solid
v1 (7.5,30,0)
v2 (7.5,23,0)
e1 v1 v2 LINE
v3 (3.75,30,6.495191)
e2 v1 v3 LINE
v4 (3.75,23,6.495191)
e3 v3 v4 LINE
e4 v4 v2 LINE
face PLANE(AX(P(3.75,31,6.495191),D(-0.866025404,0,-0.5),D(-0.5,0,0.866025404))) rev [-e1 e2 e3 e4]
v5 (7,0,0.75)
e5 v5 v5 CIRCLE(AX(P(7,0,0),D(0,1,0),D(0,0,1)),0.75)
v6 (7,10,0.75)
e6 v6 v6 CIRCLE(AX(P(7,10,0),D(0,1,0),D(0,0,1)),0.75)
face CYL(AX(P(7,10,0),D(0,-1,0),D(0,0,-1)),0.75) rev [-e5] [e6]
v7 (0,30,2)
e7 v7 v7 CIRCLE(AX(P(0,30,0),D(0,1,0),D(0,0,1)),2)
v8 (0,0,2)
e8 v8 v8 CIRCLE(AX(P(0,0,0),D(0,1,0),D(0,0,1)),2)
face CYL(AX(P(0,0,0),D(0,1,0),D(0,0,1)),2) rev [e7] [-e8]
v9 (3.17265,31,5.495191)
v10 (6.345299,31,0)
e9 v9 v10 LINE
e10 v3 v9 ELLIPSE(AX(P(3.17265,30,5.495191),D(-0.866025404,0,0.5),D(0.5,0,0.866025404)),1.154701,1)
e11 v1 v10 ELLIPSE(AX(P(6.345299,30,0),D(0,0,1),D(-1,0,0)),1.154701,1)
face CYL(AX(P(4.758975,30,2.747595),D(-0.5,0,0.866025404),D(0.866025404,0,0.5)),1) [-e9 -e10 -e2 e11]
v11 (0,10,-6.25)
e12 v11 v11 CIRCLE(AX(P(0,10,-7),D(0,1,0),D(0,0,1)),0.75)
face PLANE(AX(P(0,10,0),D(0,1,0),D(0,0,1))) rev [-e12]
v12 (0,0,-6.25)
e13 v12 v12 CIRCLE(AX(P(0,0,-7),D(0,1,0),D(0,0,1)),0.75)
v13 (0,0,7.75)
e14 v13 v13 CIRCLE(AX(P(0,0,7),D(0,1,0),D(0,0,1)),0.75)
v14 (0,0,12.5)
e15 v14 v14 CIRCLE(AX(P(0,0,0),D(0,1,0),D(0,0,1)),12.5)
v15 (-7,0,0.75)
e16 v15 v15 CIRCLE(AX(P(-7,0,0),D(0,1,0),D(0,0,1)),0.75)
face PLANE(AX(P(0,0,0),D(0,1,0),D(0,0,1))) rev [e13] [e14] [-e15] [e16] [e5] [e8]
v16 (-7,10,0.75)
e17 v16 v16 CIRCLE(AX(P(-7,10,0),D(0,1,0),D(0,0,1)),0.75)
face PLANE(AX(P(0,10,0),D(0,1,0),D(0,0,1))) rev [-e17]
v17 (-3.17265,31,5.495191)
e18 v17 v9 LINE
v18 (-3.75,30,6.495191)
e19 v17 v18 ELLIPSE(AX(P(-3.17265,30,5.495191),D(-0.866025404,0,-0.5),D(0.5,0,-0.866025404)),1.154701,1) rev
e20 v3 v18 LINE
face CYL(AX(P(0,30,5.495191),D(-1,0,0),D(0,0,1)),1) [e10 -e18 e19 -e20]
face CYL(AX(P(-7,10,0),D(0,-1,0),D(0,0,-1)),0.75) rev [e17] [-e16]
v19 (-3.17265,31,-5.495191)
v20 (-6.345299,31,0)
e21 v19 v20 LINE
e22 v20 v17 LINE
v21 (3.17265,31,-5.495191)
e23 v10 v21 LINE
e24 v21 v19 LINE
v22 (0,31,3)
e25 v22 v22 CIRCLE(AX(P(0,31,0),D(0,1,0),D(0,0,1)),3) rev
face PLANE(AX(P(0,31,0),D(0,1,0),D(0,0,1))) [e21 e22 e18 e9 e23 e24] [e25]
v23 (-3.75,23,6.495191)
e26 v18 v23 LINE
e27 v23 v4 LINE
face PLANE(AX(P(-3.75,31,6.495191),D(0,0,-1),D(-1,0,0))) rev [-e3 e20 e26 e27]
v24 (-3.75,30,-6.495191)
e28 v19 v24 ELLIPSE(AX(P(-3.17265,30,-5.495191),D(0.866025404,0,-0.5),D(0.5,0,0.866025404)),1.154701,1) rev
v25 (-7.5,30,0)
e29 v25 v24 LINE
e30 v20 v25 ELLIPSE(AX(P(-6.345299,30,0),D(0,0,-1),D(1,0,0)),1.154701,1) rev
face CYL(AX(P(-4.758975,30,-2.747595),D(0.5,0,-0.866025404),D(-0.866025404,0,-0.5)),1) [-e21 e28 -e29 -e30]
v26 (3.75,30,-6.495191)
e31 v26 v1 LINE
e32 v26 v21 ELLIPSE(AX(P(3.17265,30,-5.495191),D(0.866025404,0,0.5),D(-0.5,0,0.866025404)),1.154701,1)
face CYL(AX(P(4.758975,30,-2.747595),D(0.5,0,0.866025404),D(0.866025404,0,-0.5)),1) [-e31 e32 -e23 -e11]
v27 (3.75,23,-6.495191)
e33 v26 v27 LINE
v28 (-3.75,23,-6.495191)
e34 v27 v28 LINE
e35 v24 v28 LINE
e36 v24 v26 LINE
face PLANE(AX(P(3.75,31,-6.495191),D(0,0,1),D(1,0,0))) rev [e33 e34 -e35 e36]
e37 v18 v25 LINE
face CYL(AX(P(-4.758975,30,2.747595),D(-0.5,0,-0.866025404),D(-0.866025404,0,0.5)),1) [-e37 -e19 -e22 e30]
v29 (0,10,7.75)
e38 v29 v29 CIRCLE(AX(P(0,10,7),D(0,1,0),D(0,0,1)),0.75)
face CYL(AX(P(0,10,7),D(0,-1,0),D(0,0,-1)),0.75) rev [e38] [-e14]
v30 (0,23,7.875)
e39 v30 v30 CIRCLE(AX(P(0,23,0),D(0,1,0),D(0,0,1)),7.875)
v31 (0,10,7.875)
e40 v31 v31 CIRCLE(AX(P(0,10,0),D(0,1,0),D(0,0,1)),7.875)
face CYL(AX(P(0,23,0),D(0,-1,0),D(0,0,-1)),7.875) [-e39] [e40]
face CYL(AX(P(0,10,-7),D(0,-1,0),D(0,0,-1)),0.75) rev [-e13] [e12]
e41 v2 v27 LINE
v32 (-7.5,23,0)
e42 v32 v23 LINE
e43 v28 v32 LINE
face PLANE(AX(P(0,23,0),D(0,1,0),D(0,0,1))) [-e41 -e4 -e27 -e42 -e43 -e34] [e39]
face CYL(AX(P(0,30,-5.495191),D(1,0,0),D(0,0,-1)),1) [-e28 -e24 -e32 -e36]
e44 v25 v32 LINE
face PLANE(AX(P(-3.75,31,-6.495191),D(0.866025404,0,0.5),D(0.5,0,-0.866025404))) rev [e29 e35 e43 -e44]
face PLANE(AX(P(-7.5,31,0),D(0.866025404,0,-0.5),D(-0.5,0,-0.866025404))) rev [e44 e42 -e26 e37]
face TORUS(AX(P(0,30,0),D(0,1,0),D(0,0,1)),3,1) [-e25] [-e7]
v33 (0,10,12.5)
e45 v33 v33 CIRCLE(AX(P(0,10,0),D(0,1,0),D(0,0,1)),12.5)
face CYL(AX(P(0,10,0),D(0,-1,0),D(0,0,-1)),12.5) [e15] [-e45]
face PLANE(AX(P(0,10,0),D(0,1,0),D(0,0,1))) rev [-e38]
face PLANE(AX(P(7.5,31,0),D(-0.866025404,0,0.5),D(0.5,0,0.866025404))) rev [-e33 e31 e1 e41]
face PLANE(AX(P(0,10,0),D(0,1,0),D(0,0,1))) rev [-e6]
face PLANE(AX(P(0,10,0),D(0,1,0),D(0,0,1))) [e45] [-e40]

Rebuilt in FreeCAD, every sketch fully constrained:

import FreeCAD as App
import Part
import Sketcher
Q = App.Units.Quantity


def edges_at(feature, points):
    """Names of the edges that pass closest to the given points."""
    edges = feature.Shape.Edges
    near = lambda p: min(range(len(edges)), key=lambda i: edges[i].distToShape(Part.Vertex(*p))[0])
    return sorted({f"Edge{near(p) + 1}" for p in points})

doc = App.newDocument("Part")
body = doc.addObject("PartDesign::Body", "Body")

# Sketch on XZ plane
sketch1 = doc.addObject("Sketcher::SketchObject", "Sketch")
body.addObject(sketch1)
sketch1.AttachmentSupport = (doc.XZ_Plane, [""])
sketch1.MapMode = "FlatFace"
sketch1.addGeometry([
    Part.Circle(App.Vector(0, 0, 0), App.Vector(0, 0, 1), 12.5),  # 0
    Part.Circle(App.Vector(0, 7, 0), App.Vector(0, 0, 1), 0.8),  # 1
    Part.Circle(App.Vector(-7, 0, 0), App.Vector(0, 0, 1), 0.8),  # 2
    Part.Circle(App.Vector(7, 0, 0), App.Vector(0, 0, 1), 0.8),  # 3
    Part.Circle(App.Vector(0, -7, 0), App.Vector(0, 0, 1), 0.8),  # 4
], False)
sketch1.addConstraint([
    Sketcher.Constraint("Coincident", 0, 3, -1, 1),
    Sketcher.Constraint("Equal", 1, 2),
    Sketcher.Constraint("Equal", 2, 3),
    Sketcher.Constraint("Equal", 3, 4),
    Sketcher.Constraint("Symmetric", 2, 3, 3, 3, -1, 1),
    Sketcher.Constraint("Symmetric", 1, 3, 4, 3, -1, 1),
    Sketcher.Constraint("PointOnObject", 1, 3, -2),
    Sketcher.Constraint("PointOnObject", 2, 3, -1),
    Sketcher.Constraint("Diameter", 0, Q("25 mm")),
    Sketcher.Constraint("Diameter", 1, Q("1.5 mm")),
    Sketcher.Constraint("DistanceY", -1, 1, 1, 3, Q("7 mm")),
    Sketcher.Constraint("DistanceX", 2, 3, -1, 1, Q("7 mm")),
])
pad1 = doc.addObject("PartDesign::Pad", "Pad")
body.addObject(pad1)
pad1.Profile = sketch1
pad1.Length = 10
pad1.Reversed = True

# Sketch on XZ plane
sketch2 = doc.addObject("Sketcher::SketchObject", "Sketch001")
body.addObject(sketch2)
sketch2.AttachmentSupport = (doc.XZ_Plane, [""])
sketch2.MapMode = "FlatFace"
sketch2.AttachmentOffset = App.Placement(App.Vector(0, 0, -10), App.Rotation())
sketch2.addGeometry(Part.Circle(App.Vector(0, 0, 0), App.Vector(0, 0, 1), 8), False)
sketch2.addConstraint([
    Sketcher.Constraint("Coincident", 0, 3, -1, 1),
    Sketcher.Constraint("Diameter", 0, Q("15.75 mm")),
])
pad2 = doc.addObject("PartDesign::Pad", "Pad001")
body.addObject(pad2)
pad2.Profile = sketch2
pad2.Length = 13
pad2.Reversed = True

# Sketch on XZ plane
sketch3 = doc.addObject("Sketcher::SketchObject", "Sketch002")
body.addObject(sketch3)
sketch3.AttachmentSupport = (doc.XZ_Plane, [""])
sketch3.MapMode = "FlatFace"
sketch3.AttachmentOffset = App.Placement(App.Vector(0, 0, -23), App.Rotation())
sketch3.addGeometry([
    Part.LineSegment(App.Vector(8, 0, 0), App.Vector(4, -6, 0)),  # 0
    Part.LineSegment(App.Vector(4, -6, 0), App.Vector(-4, -6, 0)),  # 1
    Part.LineSegment(App.Vector(-4, -6, 0), App.Vector(-8, 0, 0)),  # 2
    Part.LineSegment(App.Vector(-8, 0, 0), App.Vector(-4, 6, 0)),  # 3
    Part.LineSegment(App.Vector(-4, 6, 0), App.Vector(4, 6, 0)),  # 4
    Part.LineSegment(App.Vector(4, 6, 0), App.Vector(8, 0, 0)),  # 5
], False)
sketch3.addConstraint([
    Sketcher.Constraint("Coincident", 0, 2, 1, 1),
    Sketcher.Constraint("Coincident", 1, 2, 2, 1),
    Sketcher.Constraint("Coincident", 2, 2, 3, 1),
    Sketcher.Constraint("Coincident", 3, 2, 4, 1),
    Sketcher.Constraint("Coincident", 4, 2, 5, 1),
    Sketcher.Constraint("Coincident", 5, 2, 0, 1),
    Sketcher.Constraint("Horizontal", 1),
    Sketcher.Constraint("Horizontal", 4),
    Sketcher.Constraint("Symmetric", 0, 2, 3, 2, -1, 1),
    Sketcher.Constraint("Symmetric", 2, 2, 5, 2, -1, 1),
    Sketcher.Constraint("PointOnObject", 2, 2, -1),
    Sketcher.Constraint("Parallel", 2, 5),
    Sketcher.Constraint("Vertical", 1, 2, 3, 2),
    Sketcher.Constraint("Angle", 0, Q("-120 deg")),
    Sketcher.Constraint("DistanceX", 1, 2, 1, 1, Q("7.5 mm")),
    Sketcher.Constraint("DistanceX", 2, 2, 5, 2, Q("15 mm")),
])
pad3 = doc.addObject("PartDesign::Pad", "Pad002")
body.addObject(pad3)
pad3.Profile = sketch3
pad3.Length = 8
pad3.Reversed = True

# Sketch on XZ plane
sketch4 = doc.addObject("Sketcher::SketchObject", "Sketch003")
body.addObject(sketch4)
sketch4.AttachmentSupport = (doc.XZ_Plane, [""])
sketch4.MapMode = "FlatFace"
sketch4.AttachmentOffset = App.Placement(App.Vector(0, 0, -31), App.Rotation())
sketch4.addGeometry(Part.Circle(App.Vector(0, 0, 0), App.Vector(0, 0, 1), 2), False)
sketch4.addConstraint([
    Sketcher.Constraint("Coincident", 0, 3, -1, 1),
    Sketcher.Constraint("Diameter", 0, Q("4 mm")),
])
pocket1 = doc.addObject("PartDesign::Pocket", "Pocket")
body.addObject(pocket1)
pocket1.Profile = sketch4
pocket1.Type = "ThroughAll"
pocket1.Reversed = True
doc.recompute()

fillet = doc.addObject("PartDesign::Fillet", "Fillet")
body.addObject(fillet)
fillet.Base = (pocket1, edges_at(pocket1, [
    (5.625, 31, 3.248),
    (5.625, 31, -3.248),
    (0, 31, -6.495),
    (-5.625, 31, -3.248),
    (-5.625, 31, 3.248),
    (0, 31, 6.495),
    (-2, 31, 0),
]))
fillet.Radius = 1

doc.recompute()
